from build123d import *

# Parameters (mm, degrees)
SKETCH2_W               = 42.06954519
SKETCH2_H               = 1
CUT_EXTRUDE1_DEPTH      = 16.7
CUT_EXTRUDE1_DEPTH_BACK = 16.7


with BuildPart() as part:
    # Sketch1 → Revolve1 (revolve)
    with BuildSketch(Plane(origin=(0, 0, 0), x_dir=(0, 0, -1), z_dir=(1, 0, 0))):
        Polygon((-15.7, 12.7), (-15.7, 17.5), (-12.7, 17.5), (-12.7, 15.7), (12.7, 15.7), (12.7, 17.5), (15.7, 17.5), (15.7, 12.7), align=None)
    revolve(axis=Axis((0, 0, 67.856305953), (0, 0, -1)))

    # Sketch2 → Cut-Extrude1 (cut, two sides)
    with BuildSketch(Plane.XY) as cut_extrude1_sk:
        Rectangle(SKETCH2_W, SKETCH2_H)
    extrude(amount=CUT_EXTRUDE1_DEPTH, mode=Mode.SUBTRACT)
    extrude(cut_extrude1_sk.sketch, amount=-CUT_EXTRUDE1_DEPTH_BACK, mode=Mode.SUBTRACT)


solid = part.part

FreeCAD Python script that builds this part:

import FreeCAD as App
import Part
import Sketcher
from FreeCAD import Vector

doc = App.newDocument("Part")
params = doc.addObject("Spreadsheet::Sheet", "Params")
for row, (alias, value) in enumerate([
    ("sketch1_height", "3 mm"),
    ("sketch1_width", "4.8 mm"),
    ("sketch1_width2", "1.8 mm"),
    ("sketch1_height2", "31.4 mm"),
    ("revolution_angle", "360 deg"),
    ("sketch2_height", "1 mm"),
], start=1):
    params.set(f"A{row}", alias)
    params.set(f"B{row}", "=" + value)
    params.setAlias(f"B{row}", alias)

body = doc.addObject("PartDesign::Body", "Body")
body.AllowCompound = True

sketch1 = body.newObject("Sketcher::SketchObject", "Sketch")
sketch1.AttachmentSupport = (doc.getObject("YZ_Plane"), [""])
sketch1.MapMode = "FlatFace"
sketch1.addGeometry([
    Part.LineSegment(Vector(17.5, 15.7, 0), Vector(12.7, 15.7, 0)),
    Part.LineSegment(Vector(12.7, 15.7, 0), Vector(12.7, -15.7, 0)),
    Part.LineSegment(Vector(12.7, -15.7, 0), Vector(17.5, -15.7, 0)),
    Part.LineSegment(Vector(17.5, -15.7, 0), Vector(17.5, -12.7, 0)),
    Part.LineSegment(Vector(17.5, -12.7, 0), Vector(15.7, -12.7, 0)),
    Part.LineSegment(Vector(15.7, -12.7, 0), Vector(15.7, 12.7, 0)),
    Part.LineSegment(Vector(15.7, 12.7, 0), Vector(17.5, 12.7, 0)),
    Part.LineSegment(Vector(17.5, 12.7, 0), Vector(17.5, 15.7, 0)),
], False)
sketch1.addConstraint([
    Sketcher.Constraint("Coincident", 0, 2, 1, 1),
    Sketcher.Constraint("Coincident", 1, 2, 2, 1),
    Sketcher.Constraint("Coincident", 2, 2, 3, 1),
    Sketcher.Constraint("Coincident", 3, 2, 4, 1),
    Sketcher.Constraint("Coincident", 4, 2, 5, 1),
    Sketcher.Constraint("Coincident", 5, 2, 6, 1),
    Sketcher.Constraint("Coincident", 6, 2, 7, 1),
    Sketcher.Constraint("Coincident", 7, 2, 0, 1),
    Sketcher.Constraint("Horizontal", 0),
    Sketcher.Constraint("Vertical", 1),
    Sketcher.Constraint("Horizontal", 2),
    Sketcher.Constraint("Vertical", 3),
    Sketcher.Constraint("Horizontal", 4),
    Sketcher.Constraint("Vertical", 5),
    Sketcher.Constraint("Horizontal", 6),
    Sketcher.Constraint("Vertical", 7),
    Sketcher.Constraint("Symmetric", 3, 2, 6, 2, -1),
    Sketcher.Constraint("Equal", 3, 7),
    Sketcher.Constraint("DistanceY", 3, 1, 3, 2, 3.0),
    Sketcher.Constraint("DistanceX", 0, 2, 0, 1, 4.8),
    Sketcher.Constraint("DistanceX", 4, 2, 4, 1, 1.8),
    Sketcher.Constraint("DistanceY", 1, 2, 1, 1, 31.4),
    Sketcher.Constraint("DistanceX", -1, 1, 0, 2, 12.7),
])
sketch1.setExpression("Constraints[18]", "Params.sketch1_height")
sketch1.setExpression("Constraints[19]", "Params.sketch1_width")
sketch1.setExpression("Constraints[20]", "Params.sketch1_width2")
sketch1.setExpression("Constraints[21]", "Params.sketch1_height2")
revolution = body.newObject("PartDesign::Revolution", "Revolution")
revolution.Profile = sketch1
revolution.ReferenceAxis = (sketch1, ["V_Axis"])
revolution.setExpression("Angle", "Params.revolution_angle")

sketch2 = body.newObject("Sketcher::SketchObject", "Sketch001")
sketch2.AttachmentSupport = (doc.getObject("XY_Plane"), [""])
sketch2.MapMode = "FlatFace"
sketch2.addGeometry([
    Part.LineSegment(Vector(-21.034773, 0.5, 0), Vector(-21.034773, -0.5, 0)),
    Part.LineSegment(Vector(-21.034773, -0.5, 0), Vector(21.034773, -0.5, 0)),
    Part.LineSegment(Vector(21.034773, -0.5, 0), Vector(21.034773, 0.5, 0)),
    Part.LineSegment(Vector(21.034773, 0.5, 0), Vector(-21.034773, 0.5, 0)),
], False)
sketch2.addConstraint([
    Sketcher.Constraint("Coincident", 0, 2, 1, 1),
    Sketcher.Constraint("Coincident", 1, 2, 2, 1),
    Sketcher.Constraint("Coincident", 2, 2, 3, 1),
    Sketcher.Constraint("Coincident", 3, 2, 0, 1),
    Sketcher.Constraint("Vertical", 0),
    Sketcher.Constraint("Horizontal", 1),
    Sketcher.Constraint("Vertical", 2),
    Sketcher.Constraint("Horizontal", 3),
    Sketcher.Constraint("Symmetric", 0, 2, 2, 2, -1, 1),
    Sketcher.Constraint("DistanceY", 0, 2, 0, 1, 1.0),
    Sketcher.Constraint("DistanceX", 1, 1, 1, 2, 42.069545),
])
sketch2.setExpression("Constraints[9]", "Params.sketch2_height")
pocket1 = body.newObject("PartDesign::Pocket", "Pocket")
pocket1.Profile = sketch2
pocket1.Type = "ThroughAll"
pocket1.Midplane = True

doc.recompute()
